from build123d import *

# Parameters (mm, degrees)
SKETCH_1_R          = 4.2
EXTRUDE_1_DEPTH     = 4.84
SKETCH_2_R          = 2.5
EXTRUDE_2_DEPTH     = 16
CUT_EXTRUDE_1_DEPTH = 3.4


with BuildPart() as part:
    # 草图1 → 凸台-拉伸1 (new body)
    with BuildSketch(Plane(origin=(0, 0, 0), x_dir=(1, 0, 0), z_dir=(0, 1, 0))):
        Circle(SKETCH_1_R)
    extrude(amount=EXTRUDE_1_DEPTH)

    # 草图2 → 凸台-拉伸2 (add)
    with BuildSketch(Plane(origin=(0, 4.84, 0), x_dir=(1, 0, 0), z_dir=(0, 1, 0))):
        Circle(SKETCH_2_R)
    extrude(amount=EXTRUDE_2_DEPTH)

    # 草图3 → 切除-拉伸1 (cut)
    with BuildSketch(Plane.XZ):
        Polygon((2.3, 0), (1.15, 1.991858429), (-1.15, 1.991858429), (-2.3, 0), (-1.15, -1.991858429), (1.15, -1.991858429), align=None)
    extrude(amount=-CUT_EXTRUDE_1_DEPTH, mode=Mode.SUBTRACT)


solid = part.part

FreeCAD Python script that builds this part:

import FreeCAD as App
import Part
import Sketcher
from FreeCAD import Vector
Q = App.Units.Quantity


def add_polygon(sketch, points):
    """Adds a closed chain of lines whose ends are joined by coincident constraints."""
    first, n = sketch.GeometryCount, len(points)
    for a, b in zip(points, points[1:] + points[:1]):
        sketch.addGeometry(Part.LineSegment(App.Vector(*a, 0), App.Vector(*b, 0)), False)
    for i in range(n):
        sketch.addConstraint(Sketcher.Constraint("Coincident", first + i, 2, first + (i + 1) % n, 1))

doc = App.newDocument("Part")
params = doc.addObject("Spreadsheet::Sheet", "Params")
for row, (alias, value) in enumerate([
    ("sketch1_diameter", "8.4 mm"),
    ("pad1_length", "4.84 mm"),
    ("sketch2_diameter", "5 mm"),
    ("pad2_length", "16 mm"),
    ("sketch3_width", "2.3 mm"),
    ("sketch3_length", "2.3 mm"),
    ("pocket1_length", "3.4 mm"),
], start=1):
    params.set(f"A{row}", alias)
    params.set(f"B{row}", "=" + value)
    params.setAlias(f"B{row}", alias)

body = doc.addObject("PartDesign::Body", "Body")

sketch1 = doc.addObject("Sketcher::SketchObject", "Sketch")
body.addObject(sketch1)
sketch1.AttachmentSupport = (doc.XZ_Plane, [""])
sketch1.MapMode = "FlatFace"
sketch1.addGeometry(Part.Circle(Vector(0, 0, 0), Vector(0, 0, 1), 4.2), False)
sketch1.addConstraint([
    Sketcher.Constraint("Coincident", 0, 3, -1, 1),
    Sketcher.Constraint("Diameter", 0, Q("8.4 mm")),
])
sketch1.setExpression("Constraints[1]", "Params.sketch1_diameter")
pad1 = doc.addObject("PartDesign::Pad", "Pad")
body.addObject(pad1)
pad1.Profile = sketch1
pad1.setExpression("Length", "Params.pad1_length")
pad1.Reversed = True

sketch2 = doc.addObject("Sketcher::SketchObject", "Sketch001")
body.addObject(sketch2)
sketch2.AttachmentSupport = (doc.XZ_Plane, [""])
sketch2.MapMode = "FlatFace"
sketch2.AttachmentOffset = App.Placement(Vector(0, 0, -4.84), App.Rotation())
sketch2.addGeometry(Part.Circle(Vector(0, 0, 0), Vector(0, 0, 1), 2.5), False)
sketch2.addConstraint([
    Sketcher.Constraint("Coincident", 0, 3, -1, 1),
    Sketcher.Constraint("Diameter", 0, Q("5 mm")),
])
sketch2.setExpression("Constraints[1]", "Params.sketch2_diameter")
pad2 = doc.addObject("PartDesign::Pad", "Pad001")
body.addObject(pad2)
pad2.Profile = sketch2
pad2.setExpression("Length", "Params.pad2_length")
pad2.Reversed = True

sketch3 = doc.addObject("Sketcher::SketchObject", "Sketch002")
body.addObject(sketch3)
sketch3.AttachmentSupport = (doc.XZ_Plane, [""])
sketch3.MapMode = "FlatFace"
add_polygon(sketch3, [(2.3, 0), (1.1, 2), (-1.1, 2), (-2.3, 0), (-1.1, -2), (1.1, -2)])
sketch3.addConstraint([
    Sketcher.Constraint("Horizontal", 1),
    Sketcher.Constraint("Horizontal", 4),
    Sketcher.Constraint("Symmetric", 0, 2, 3, 2, -1, 1),
    Sketcher.Constraint("Symmetric", 2, 2, 5, 2, -1, 1),
    Sketcher.Constraint("PointOnObject", 2, 2, -1),
    Sketcher.Constraint("Parallel", 2, 5),
    Sketcher.Constraint("Vertical", 1, 2, 3, 2),
    Sketcher.Constraint("Angle", 0, Q("120 deg")),
    Sketcher.Constraint("DistanceX", 1, 2, 1, 1, Q("2.3 mm")),
    Sketcher.Constraint("Distance", 0, Q("2.3 mm")),
])
sketch3.setExpression("Constraints[14]", "Params.sketch3_width")
sketch3.setExpression("Constraints[15]", "Params.sketch3_length")
pocket1 = doc.addObject("PartDesign::Pocket", "Pocket")
body.addObject(pocket1)
pocket1.Profile = sketch3
pocket1.setExpression("Length", "Params.pocket1_length")

doc.recompute()
